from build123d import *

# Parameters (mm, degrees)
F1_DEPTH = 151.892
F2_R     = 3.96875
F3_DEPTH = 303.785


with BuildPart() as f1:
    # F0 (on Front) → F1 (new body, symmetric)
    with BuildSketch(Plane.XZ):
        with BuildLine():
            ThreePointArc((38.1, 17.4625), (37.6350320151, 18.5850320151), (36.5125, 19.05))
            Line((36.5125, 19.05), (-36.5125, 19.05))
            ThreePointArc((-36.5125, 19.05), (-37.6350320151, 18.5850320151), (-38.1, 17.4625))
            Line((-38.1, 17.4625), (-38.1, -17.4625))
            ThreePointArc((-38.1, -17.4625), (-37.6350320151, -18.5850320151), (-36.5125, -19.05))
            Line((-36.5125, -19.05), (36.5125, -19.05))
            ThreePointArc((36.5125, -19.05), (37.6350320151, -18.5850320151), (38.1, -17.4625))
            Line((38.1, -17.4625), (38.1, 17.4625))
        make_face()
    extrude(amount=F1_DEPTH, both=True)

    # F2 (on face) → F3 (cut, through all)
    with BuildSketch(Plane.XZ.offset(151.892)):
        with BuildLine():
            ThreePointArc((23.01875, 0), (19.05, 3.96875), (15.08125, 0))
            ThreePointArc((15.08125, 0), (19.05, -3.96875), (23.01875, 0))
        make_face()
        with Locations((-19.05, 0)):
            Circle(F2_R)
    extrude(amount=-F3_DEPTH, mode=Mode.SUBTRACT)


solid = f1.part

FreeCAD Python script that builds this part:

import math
import FreeCAD as App
import Part
import Sketcher

V = App.Vector
Q = App.Units.Quantity

doc = App.newDocument("Part")
body = doc.addObject("PartDesign::Body", "Body")

sketch1 = body.newObject("Sketcher::SketchObject", "Sketch")
sketch1.AttachmentSupport = (doc.getObject("XZ_Plane"), [""])
sketch1.MapMode = "FlatFace"
sketch1.addGeometry([
    Part.ArcOfCircle(Part.Circle(V(36.5, 17.5, 0), V(0, 0, 1), 1.6), math.radians(0), math.radians(90)),
    Part.LineSegment(V(36.5, 19.1, 0), V(-36.5, 19.1, 0)),
    Part.ArcOfCircle(Part.Circle(V(-36.5, 17.5, 0), V(0, 0, 1), 1.6), math.radians(90), math.radians(180)),
    Part.LineSegment(V(-38.1, 17.5, 0), V(-38.1, -17.5, 0)),
    Part.ArcOfCircle(Part.Circle(V(-36.5, -17.5, 0), V(0, 0, 1), 1.6), math.radians(180), math.radians(270)),
    Part.LineSegment(V(-36.5, -19.1, 0), V(36.5, -19.1, 0)),
    Part.ArcOfCircle(Part.Circle(V(36.5, -17.5, 0), V(0, 0, 1), 1.6), math.radians(-90), math.radians(0)),
    Part.LineSegment(V(38.1, -17.5, 0), V(38.1, 17.5, 0)),
], False)
sketch1.addConstraint([
    Sketcher.Constraint("Tangent", 0, 2, 1, 1),
    Sketcher.Constraint("Tangent", 1, 2, 2, 1),
    Sketcher.Constraint("Tangent", 2, 2, 3, 1),
    Sketcher.Constraint("Tangent", 3, 2, 4, 1),
    Sketcher.Constraint("Tangent", 4, 2, 5, 1),
    Sketcher.Constraint("Tangent", 5, 2, 6, 1),
    Sketcher.Constraint("Tangent", 6, 2, 7, 1),
    Sketcher.Constraint("Tangent", 7, 2, 0, 1),
    Sketcher.Constraint("Horizontal", 1),
    Sketcher.Constraint("Vertical", 3),
    Sketcher.Constraint("Horizontal", 5),
    Sketcher.Constraint("Vertical", 7),
    Sketcher.Constraint("Equal", 0, 2),
    Sketcher.Constraint("Equal", 2, 4),
    Sketcher.Constraint("Equal", 4, 6),
    Sketcher.Constraint("Symmetric", 0, 3, 4, 3, -1, 1),
    Sketcher.Constraint("Radius", 0, Q("0.0625 in")),
    Sketcher.Constraint("DistanceX", 2, 2, -1, 1, Q("1.5 in")),
    Sketcher.Constraint("DistanceY", 4, 2, 1, 2, Q("1.5 in")),
])
pad1 = body.newObject("PartDesign::Pad", "Pad")
pad1.Profile = sketch1
pad1.Length = Q("11.96 in")
pad1.Midplane = True

sketch2 = body.newObject("Sketcher::SketchObject", "Sketch001")
sketch2.AttachmentSupport = (doc.getObject("XZ_Plane"), [""])
sketch2.MapMode = "FlatFace"
sketch2.AttachmentOffset = App.Placement(V(0, 0, 5.98 * 25.4), App.Rotation())
sketch2.addGeometry([
    Part.Circle(V(19.1, 0, 0), V(0, 0, 1), 4),
    Part.Circle(V(-19.1, 0, 0), V(0, 0, 1), 4),
], False)
sketch2.addConstraint([
    Sketcher.Constraint("Equal", 0, 1),
    Sketcher.Constraint("Symmetric", 0, 3, 1, 3, -1, 1),
    Sketcher.Constraint("PointOnObject", 0, 3, -1),
    Sketcher.Constraint("Diameter", 0, Q("0.3125 in")),
    Sketcher.Constraint("DistanceX", 1, 3, 0, 3, Q("1.5 in")),
])
pocket1 = body.newObject("PartDesign::Pocket", "Pocket")
pocket1.Profile = sketch2
pocket1.Type = "ThroughAll"

doc.recompute()
